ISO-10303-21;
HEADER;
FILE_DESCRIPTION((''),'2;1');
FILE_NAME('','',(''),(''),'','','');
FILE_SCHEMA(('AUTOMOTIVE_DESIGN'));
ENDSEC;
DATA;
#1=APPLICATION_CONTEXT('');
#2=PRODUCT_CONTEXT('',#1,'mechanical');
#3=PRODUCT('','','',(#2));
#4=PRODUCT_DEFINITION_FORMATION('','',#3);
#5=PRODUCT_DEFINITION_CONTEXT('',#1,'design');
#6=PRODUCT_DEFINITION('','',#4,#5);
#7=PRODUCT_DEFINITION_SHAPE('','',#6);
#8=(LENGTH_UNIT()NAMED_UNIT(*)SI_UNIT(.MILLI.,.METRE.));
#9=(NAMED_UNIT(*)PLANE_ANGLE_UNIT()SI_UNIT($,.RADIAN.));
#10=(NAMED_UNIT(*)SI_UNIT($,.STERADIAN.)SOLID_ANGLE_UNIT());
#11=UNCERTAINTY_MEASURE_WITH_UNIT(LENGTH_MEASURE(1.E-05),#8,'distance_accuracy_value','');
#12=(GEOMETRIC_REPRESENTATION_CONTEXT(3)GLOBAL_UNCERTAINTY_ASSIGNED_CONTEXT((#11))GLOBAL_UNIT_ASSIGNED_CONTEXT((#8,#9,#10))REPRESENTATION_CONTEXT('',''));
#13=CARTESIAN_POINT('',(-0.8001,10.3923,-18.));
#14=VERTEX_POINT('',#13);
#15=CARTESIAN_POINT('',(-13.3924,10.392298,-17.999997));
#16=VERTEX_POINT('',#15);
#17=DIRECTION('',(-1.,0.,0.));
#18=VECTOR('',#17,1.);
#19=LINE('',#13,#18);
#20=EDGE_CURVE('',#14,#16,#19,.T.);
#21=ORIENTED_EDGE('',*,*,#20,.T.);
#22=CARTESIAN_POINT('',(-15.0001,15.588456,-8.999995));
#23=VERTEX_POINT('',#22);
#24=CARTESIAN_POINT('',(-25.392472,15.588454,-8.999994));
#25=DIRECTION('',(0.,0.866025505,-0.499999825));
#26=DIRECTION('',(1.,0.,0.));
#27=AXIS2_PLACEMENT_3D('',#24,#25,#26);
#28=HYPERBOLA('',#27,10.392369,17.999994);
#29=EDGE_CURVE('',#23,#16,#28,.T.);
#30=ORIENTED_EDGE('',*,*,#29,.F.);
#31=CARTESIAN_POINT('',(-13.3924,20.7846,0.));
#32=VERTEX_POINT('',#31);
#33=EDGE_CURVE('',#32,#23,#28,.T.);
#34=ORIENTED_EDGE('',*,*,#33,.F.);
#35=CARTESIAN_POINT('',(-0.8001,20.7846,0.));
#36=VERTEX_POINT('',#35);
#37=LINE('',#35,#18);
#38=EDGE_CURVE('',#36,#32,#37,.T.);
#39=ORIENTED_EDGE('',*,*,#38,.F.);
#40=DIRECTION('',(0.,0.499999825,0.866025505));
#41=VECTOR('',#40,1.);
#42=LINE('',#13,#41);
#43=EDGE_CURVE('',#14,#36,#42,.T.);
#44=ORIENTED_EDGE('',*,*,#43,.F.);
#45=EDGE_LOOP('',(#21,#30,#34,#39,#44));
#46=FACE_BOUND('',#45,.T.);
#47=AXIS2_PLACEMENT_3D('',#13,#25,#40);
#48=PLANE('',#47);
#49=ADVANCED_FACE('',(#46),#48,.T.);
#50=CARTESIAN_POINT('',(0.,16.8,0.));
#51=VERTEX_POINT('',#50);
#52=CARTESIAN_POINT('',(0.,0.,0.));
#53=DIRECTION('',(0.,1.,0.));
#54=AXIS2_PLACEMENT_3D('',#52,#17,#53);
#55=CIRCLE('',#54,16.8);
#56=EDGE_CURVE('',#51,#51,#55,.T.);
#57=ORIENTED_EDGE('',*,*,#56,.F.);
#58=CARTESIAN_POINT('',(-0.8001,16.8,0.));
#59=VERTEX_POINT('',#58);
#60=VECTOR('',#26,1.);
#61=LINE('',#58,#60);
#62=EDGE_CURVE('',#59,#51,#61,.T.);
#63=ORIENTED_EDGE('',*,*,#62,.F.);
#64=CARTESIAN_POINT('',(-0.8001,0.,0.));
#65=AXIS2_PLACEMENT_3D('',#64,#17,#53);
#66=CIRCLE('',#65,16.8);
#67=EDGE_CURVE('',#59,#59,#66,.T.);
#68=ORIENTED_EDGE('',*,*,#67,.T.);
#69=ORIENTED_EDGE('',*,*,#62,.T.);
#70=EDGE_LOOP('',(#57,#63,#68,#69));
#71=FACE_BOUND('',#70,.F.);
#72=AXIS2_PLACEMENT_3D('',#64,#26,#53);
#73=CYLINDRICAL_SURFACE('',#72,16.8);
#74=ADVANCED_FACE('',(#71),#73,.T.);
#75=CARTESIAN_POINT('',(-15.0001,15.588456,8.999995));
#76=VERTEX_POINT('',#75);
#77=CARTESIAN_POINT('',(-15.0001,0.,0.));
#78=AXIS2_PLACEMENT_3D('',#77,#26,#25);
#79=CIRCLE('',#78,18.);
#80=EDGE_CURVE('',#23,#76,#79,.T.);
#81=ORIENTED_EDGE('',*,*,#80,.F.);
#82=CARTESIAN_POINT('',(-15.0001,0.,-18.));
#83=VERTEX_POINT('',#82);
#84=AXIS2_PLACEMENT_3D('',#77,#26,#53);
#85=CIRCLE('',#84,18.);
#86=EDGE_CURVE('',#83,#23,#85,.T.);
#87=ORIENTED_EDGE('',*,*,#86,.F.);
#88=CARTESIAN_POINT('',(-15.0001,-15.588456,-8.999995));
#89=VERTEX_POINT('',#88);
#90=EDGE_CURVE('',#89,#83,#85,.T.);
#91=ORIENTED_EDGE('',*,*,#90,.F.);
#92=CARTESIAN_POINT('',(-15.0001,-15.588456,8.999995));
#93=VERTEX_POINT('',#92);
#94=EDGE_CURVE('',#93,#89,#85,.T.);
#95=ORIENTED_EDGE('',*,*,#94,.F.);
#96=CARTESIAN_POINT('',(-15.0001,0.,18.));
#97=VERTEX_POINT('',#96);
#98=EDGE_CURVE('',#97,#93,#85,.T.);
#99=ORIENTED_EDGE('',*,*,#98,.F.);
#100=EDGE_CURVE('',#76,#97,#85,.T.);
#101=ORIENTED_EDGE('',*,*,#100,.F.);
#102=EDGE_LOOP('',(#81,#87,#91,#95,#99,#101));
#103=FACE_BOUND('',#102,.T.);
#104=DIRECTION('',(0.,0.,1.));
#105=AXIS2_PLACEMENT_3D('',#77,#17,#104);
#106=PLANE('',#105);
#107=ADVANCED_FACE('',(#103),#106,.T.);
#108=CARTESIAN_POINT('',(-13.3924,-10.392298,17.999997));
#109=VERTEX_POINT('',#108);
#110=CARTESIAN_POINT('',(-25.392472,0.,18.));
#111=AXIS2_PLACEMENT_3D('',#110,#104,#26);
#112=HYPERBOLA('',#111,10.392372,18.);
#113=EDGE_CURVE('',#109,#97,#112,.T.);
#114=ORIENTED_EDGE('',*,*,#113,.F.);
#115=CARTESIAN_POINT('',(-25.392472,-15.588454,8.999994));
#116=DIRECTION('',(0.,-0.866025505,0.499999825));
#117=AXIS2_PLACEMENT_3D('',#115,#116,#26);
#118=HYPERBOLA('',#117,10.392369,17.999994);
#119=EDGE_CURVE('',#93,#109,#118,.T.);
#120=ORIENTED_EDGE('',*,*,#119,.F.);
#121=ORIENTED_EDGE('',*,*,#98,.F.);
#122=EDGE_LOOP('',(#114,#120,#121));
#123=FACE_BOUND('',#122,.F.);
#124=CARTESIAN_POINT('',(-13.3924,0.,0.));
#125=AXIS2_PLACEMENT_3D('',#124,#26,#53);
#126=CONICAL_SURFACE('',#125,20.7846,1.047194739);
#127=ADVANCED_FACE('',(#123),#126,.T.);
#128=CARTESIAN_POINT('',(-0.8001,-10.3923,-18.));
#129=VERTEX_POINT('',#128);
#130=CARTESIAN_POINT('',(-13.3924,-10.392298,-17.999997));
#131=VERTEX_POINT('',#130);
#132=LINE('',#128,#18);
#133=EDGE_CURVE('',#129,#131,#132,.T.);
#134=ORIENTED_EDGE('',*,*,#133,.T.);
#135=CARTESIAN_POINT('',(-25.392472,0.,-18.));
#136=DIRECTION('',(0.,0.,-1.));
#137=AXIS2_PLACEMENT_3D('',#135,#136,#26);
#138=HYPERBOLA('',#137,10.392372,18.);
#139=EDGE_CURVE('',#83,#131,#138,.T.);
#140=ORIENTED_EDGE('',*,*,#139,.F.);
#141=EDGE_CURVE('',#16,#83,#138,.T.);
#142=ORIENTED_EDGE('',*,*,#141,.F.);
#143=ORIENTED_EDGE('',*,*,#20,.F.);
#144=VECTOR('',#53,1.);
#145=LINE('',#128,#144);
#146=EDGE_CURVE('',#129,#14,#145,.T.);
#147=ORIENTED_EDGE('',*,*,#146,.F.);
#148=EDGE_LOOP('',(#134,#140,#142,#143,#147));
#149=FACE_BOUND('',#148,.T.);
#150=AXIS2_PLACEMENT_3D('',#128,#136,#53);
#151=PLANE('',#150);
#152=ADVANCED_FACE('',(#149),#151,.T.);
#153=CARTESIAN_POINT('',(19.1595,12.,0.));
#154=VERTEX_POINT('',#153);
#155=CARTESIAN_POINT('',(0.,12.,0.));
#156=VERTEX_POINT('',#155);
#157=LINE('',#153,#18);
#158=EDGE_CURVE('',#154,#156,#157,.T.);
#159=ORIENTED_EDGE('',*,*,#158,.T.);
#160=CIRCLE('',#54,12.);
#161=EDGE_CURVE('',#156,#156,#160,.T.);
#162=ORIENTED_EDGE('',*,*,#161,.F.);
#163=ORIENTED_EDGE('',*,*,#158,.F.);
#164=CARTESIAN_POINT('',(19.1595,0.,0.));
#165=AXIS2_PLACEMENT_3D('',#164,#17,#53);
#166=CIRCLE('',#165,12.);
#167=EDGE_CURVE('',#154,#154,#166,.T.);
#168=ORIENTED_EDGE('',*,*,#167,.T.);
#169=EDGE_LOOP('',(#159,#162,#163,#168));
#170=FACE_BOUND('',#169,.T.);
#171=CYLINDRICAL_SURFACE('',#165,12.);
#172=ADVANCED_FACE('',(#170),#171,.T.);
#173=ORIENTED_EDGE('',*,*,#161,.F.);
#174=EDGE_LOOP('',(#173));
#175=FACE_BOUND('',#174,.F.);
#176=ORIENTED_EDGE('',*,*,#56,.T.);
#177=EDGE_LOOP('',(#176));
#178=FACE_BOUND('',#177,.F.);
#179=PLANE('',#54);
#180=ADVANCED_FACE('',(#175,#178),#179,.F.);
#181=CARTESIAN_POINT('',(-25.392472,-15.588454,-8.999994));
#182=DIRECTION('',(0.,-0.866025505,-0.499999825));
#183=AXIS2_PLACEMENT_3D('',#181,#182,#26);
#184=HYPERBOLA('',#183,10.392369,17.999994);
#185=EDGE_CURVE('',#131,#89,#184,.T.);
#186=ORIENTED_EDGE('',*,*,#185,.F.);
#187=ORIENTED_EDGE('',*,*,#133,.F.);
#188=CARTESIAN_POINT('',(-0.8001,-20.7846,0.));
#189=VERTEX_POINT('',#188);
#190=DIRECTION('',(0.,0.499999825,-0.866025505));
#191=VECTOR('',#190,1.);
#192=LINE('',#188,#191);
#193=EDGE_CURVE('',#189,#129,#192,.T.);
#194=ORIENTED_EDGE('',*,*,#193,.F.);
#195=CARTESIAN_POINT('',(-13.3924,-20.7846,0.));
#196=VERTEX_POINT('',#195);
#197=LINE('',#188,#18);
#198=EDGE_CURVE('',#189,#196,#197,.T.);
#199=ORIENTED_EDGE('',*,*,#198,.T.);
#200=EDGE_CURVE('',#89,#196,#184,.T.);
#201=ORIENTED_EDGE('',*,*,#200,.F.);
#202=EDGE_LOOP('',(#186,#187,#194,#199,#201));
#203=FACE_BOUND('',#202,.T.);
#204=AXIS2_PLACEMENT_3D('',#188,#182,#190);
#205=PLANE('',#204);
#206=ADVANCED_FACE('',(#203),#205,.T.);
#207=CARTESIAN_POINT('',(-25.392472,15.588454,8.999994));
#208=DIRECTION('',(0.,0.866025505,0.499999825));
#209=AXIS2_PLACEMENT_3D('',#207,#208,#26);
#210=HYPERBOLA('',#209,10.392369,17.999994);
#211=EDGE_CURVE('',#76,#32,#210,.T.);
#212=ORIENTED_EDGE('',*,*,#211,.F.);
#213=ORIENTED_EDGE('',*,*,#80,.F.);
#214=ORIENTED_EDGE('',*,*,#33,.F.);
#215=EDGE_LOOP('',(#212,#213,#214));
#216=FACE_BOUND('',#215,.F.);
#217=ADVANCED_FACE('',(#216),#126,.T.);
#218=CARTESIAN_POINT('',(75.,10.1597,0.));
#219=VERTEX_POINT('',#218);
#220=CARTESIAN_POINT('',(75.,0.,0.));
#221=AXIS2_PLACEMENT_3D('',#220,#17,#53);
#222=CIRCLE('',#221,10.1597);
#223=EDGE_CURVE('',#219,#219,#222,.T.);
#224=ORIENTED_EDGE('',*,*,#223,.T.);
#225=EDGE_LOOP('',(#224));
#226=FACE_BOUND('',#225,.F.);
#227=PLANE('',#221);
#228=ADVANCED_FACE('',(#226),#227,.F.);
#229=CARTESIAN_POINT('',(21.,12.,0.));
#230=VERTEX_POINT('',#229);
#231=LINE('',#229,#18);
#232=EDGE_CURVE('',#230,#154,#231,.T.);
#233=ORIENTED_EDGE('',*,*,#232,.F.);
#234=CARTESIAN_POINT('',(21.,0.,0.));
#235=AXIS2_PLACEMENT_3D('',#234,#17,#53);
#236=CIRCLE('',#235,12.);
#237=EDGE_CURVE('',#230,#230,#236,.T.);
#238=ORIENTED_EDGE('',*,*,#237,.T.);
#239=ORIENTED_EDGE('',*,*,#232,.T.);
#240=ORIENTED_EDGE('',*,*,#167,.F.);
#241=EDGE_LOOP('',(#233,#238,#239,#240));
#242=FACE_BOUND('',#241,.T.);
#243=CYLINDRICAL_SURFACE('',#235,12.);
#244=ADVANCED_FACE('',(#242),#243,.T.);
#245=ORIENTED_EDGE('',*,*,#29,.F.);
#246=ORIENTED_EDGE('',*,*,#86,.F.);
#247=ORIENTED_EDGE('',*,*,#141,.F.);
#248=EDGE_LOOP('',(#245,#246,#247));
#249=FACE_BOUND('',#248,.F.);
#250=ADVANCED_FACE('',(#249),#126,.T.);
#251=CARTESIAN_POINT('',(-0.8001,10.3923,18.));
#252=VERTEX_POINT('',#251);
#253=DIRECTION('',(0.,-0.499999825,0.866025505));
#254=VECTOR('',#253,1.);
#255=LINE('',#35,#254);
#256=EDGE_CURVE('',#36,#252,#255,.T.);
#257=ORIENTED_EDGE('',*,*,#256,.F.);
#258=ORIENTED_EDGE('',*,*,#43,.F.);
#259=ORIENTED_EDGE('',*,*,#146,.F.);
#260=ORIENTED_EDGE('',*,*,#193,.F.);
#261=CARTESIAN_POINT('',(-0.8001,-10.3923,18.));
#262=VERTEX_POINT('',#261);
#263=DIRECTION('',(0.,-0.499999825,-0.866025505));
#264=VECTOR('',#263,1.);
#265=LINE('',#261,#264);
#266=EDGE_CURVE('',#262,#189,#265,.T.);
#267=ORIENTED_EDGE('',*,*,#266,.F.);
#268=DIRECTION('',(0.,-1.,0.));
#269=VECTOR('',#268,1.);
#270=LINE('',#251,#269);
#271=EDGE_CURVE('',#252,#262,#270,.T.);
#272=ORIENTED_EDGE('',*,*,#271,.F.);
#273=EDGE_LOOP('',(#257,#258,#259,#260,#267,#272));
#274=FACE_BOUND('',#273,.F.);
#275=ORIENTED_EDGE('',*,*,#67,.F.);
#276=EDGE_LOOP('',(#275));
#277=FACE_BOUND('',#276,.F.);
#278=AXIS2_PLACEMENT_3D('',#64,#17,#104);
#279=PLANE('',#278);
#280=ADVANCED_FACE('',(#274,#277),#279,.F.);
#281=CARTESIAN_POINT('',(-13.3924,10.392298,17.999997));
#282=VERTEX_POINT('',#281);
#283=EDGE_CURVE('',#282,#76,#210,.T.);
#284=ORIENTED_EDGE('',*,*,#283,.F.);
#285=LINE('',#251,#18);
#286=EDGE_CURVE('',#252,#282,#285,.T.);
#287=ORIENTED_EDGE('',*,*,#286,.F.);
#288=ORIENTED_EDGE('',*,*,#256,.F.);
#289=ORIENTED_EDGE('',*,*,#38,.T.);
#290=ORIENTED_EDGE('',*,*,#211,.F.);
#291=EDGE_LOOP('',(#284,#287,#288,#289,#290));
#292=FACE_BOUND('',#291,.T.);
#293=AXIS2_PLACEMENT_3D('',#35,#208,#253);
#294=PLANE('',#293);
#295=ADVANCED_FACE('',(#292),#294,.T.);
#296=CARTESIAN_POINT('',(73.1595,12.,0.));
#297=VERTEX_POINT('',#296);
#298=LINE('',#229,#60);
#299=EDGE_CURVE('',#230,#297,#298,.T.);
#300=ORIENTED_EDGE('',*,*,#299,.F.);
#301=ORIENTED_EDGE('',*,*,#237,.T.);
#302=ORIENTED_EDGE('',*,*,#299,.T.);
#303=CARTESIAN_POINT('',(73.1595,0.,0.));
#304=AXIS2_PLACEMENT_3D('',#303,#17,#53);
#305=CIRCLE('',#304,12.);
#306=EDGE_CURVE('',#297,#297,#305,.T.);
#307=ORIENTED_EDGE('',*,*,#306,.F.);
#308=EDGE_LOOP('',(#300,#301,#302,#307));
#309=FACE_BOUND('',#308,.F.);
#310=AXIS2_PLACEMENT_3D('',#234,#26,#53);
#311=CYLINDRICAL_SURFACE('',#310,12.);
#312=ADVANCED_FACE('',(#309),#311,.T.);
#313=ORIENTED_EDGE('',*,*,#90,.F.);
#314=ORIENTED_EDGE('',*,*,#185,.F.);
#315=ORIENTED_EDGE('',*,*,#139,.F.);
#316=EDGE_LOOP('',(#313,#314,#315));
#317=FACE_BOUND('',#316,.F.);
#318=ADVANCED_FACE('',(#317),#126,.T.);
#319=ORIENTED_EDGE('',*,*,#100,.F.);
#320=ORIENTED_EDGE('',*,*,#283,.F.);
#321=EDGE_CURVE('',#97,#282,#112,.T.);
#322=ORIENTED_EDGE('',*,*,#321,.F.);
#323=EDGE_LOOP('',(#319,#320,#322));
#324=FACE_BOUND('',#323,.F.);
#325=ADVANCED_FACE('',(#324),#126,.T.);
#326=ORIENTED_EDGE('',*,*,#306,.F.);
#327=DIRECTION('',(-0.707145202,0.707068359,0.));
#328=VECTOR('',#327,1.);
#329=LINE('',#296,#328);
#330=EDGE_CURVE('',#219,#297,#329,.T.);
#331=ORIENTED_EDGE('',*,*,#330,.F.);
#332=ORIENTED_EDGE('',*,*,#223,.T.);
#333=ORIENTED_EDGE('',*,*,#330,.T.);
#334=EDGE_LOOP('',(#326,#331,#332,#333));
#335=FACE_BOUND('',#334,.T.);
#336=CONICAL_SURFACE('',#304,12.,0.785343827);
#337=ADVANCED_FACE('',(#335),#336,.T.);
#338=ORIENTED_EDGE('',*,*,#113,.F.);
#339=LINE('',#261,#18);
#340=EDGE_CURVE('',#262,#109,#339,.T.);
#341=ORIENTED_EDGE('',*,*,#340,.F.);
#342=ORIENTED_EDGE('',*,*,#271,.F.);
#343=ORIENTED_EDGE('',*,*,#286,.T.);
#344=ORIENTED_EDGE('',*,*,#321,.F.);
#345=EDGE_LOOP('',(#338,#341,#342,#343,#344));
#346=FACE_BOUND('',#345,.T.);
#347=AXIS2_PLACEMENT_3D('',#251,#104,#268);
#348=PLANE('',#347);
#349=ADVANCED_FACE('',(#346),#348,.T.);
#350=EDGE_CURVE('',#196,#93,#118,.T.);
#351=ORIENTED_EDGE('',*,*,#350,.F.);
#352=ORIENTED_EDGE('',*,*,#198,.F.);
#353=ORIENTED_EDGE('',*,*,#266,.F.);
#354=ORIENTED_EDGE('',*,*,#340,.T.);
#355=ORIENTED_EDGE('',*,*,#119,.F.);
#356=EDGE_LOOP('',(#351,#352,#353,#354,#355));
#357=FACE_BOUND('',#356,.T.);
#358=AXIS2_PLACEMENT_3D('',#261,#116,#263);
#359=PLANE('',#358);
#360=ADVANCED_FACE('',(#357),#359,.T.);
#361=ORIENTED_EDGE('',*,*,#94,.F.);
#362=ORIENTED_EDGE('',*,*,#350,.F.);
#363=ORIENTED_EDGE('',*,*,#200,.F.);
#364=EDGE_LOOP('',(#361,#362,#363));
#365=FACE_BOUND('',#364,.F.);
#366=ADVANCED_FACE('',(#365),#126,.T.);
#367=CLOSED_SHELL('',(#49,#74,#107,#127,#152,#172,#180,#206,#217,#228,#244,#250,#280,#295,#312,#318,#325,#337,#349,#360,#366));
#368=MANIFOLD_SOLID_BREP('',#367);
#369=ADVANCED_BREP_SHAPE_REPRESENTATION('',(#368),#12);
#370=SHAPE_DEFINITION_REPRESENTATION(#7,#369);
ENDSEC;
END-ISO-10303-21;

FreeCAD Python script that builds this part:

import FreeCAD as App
import Part
import Sketcher

V = App.Vector
Q = App.Units.Quantity


def edges_at(feature, points):
    """Names of the edges that pass closest to the given points."""
    edges = feature.Shape.Edges
    near = lambda p: min(range(len(edges)), key=lambda i: edges[i].distToShape(Part.Vertex(*p))[0])
    return sorted({f"Edge{near(p) + 1}" for p in points})


def add_polygon(sketch, points):
    """Adds a closed chain of lines whose ends are joined by coincident constraints."""
    first, n = sketch.GeometryCount, len(points)
    for a, b in zip(points, points[1:] + points[:1]):
        sketch.addGeometry(Part.LineSegment(App.Vector(*a, 0), App.Vector(*b, 0)), False)
    for i in range(n):
        sketch.addConstraint(Sketcher.Constraint("Coincident", first + i, 2, first + (i + 1) % n, 1))

doc = App.newDocument("Part")
body = doc.addObject("PartDesign::Body", "Body")

sketch1 = body.newObject("Sketcher::SketchObject", "Sketch")
sketch1.AttachmentSupport = (doc.getObject("XY_Plane"), [""])
sketch1.MapMode = "FlatFace"
add_polygon(sketch1, [(0, 12), (0, 16.8), (-0.8001, 16.8), (-0.8001, 0), (75, 0), (75, 12)])
sketch1.addConstraint([
    Sketcher.Constraint("Vertical", 0),
    Sketcher.Constraint("Horizontal", 1),
    Sketcher.Constraint("Vertical", 2),
    Sketcher.Constraint("Horizontal", 3),
    Sketcher.Constraint("Vertical", 4),
    Sketcher.Constraint("Horizontal", 5),
    Sketcher.Constraint("PointOnObject", 0, 2, -2),
    Sketcher.Constraint("PointOnObject", 2, 2, -1),
    Sketcher.Constraint("DistanceX", 5, 2, 5, 1, Q("75 mm")),
    Sketcher.Constraint("DistanceX", 1, 2, 1, 1, Q("0.8 mm")),
    Sketcher.Constraint("DistanceY", 4, 1, 4, 2, Q("12 mm")),
    Sketcher.Constraint("DistanceY", 0, 1, 0, 2, Q("4.8 mm")),
])
revolution = body.newObject("PartDesign::Revolution", "Revolution")
revolution.Profile = sketch1
revolution.ReferenceAxis = (sketch1, ["H_Axis"])
revolution.Angle = 360

sketch2 = body.newObject("Sketcher::SketchObject", "Sketch001")
sketch2.AttachmentSupport = (doc.getObject("YZ_Plane"), [""])
sketch2.MapMode = "FlatFace"
sketch2.AttachmentOffset = App.Placement(V(0, 0, -0.8001), App.Rotation())
add_polygon(sketch2, [(10.3923, 18), (20.7846, 0), (10.3923, -18), (-10.3923, -18), (-20.7846, 0), (-10.3923, 18)])
sketch2.addConstraint([
    Sketcher.Constraint("Horizontal", 2),
    Sketcher.Constraint("Horizontal", 5),
    Sketcher.Constraint("Symmetric", 0, 2, 3, 2, -1, 1),
    Sketcher.Constraint("Symmetric", 1, 2, 4, 2, -1, 1),
    Sketcher.Constraint("PointOnObject", 0, 2, -1),
    Sketcher.Constraint("Parallel", 0, 3),
    Sketcher.Constraint("Vertical", 2, 2, 4, 2),
    Sketcher.Constraint("DistanceY", 2, 2, 4, 2, Q("36 mm")),
    Sketcher.Constraint("Angle", 0, Q("-60 deg")),
    Sketcher.Constraint("DistanceX", 2, 2, 2, 1, Q("20.7846 mm")),
])
pad1 = body.newObject("PartDesign::Pad", "Pad")
pad1.Profile = sketch2
pad1.Length = 14.2
pad1.Reversed = True

sketch3 = body.newObject("Sketcher::SketchObject", "Sketch002")
sketch3.AttachmentSupport = (doc.getObject("XY_Plane"), [""])
sketch3.MapMode = "FlatFace"
add_polygon(sketch3, [(-15.0001, 20.7846), (-15.0001, 18), (-13.3924, 20.7846)])
sketch3.addConstraint([
    Sketcher.Constraint("Vertical", 0),
    Sketcher.Constraint("Horizontal", 2),
    Sketcher.Constraint("Angle", 1, Q("59.9998 deg")),
    Sketcher.Constraint("DistanceX", 0, 2, -1, 1, Q("15 mm")),
    Sketcher.Constraint("DistanceY", -1, 1, 0, 2, Q("18 mm")),
    Sketcher.Constraint("DistanceX", 2, 2, 2, 1, Q("1.6077 mm")),
])
groove = body.newObject("PartDesign::Groove", "Groove")
groove.Profile = sketch3
groove.ReferenceAxis = (sketch3, ["H_Axis"])
groove.Angle = 360
doc.recompute()

chamfer = body.newObject("PartDesign::Chamfer", "Chamfer")
chamfer.Base = (groove, edges_at(groove, [(75, -12, 0)]))
chamfer.ChamferType = "Two distances"
chamfer.Size = 1.8403
chamfer.Size2 = 1.8405

doc.recompute()
